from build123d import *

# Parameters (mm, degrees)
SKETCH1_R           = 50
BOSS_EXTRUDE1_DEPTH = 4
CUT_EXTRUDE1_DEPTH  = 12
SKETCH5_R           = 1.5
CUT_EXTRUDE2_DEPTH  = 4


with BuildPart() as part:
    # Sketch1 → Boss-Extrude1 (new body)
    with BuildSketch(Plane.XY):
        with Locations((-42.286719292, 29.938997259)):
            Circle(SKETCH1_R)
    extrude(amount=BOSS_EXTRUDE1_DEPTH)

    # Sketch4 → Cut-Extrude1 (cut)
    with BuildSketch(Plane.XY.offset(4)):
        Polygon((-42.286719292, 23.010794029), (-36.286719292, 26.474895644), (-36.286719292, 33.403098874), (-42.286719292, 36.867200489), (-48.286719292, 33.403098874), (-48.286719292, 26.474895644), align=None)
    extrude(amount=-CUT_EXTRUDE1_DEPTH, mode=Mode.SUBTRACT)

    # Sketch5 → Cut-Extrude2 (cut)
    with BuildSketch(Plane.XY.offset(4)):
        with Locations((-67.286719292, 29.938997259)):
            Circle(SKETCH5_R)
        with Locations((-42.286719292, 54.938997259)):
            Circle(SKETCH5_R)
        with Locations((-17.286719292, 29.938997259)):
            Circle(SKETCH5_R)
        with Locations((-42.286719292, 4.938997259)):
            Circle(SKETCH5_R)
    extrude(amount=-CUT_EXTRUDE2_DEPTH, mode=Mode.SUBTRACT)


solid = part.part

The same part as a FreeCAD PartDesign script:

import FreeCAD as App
import Part
import Sketcher

V = App.Vector
Q = App.Units.Quantity

doc = App.newDocument("Part")
body = doc.addObject("PartDesign::Body", "Body")

sketch1 = body.newObject("Sketcher::SketchObject", "Sketch")
sketch1.AttachmentSupport = (doc.getObject("XY_Plane"), [""])
sketch1.MapMode = "FlatFace"
sketch1.addGeometry(Part.Circle(V(-42.286719, 29.938997, 0), V(0, 0, 1), 50), False)
sketch1.addConstraint([
    Sketcher.Constraint("Diameter", 0, Q("100 mm")),
    Sketcher.Constraint("DistanceX", 0, 3, -1, 1, Q("42.286719 mm")),
    Sketcher.Constraint("DistanceY", -1, 1, 0, 3, Q("29.938997 mm")),
])
pad1 = body.newObject("PartDesign::Pad", "Pad")
pad1.Profile = sketch1
pad1.Length = 4

sketch2 = body.newObject("Sketcher::SketchObject", "Sketch001")
sketch2.AttachmentSupport = (doc.getObject("XY_Plane"), [""])
sketch2.MapMode = "FlatFace"
sketch2.AttachmentOffset = App.Placement(V(0, 0, 4), App.Rotation())
sketch2.addGeometry([
    Part.LineSegment(V(-42.286719, 23.010794, 0), V(-36.286719, 26.474896, 0)),
    Part.LineSegment(V(-36.286719, 26.474896, 0), V(-36.286719, 33.403099, 0)),
    Part.LineSegment(V(-36.286719, 33.403099, 0), V(-42.286719, 36.8672, 0)),
    Part.LineSegment(V(-42.286719, 36.8672, 0), V(-48.286719, 33.403099, 0)),
    Part.LineSegment(V(-48.286719, 33.403099, 0), V(-48.286719, 26.474896, 0)),
    Part.LineSegment(V(-48.286719, 26.474896, 0), V(-42.286719, 23.010794, 0)),
], False)
sketch2.addConstraint([
    Sketcher.Constraint("Coincident", 0, 2, 1, 1),
    Sketcher.Constraint("Coincident", 1, 2, 2, 1),
    Sketcher.Constraint("Coincident", 2, 2, 3, 1),
    Sketcher.Constraint("Coincident", 3, 2, 4, 1),
    Sketcher.Constraint("Coincident", 4, 2, 5, 1),
    Sketcher.Constraint("Coincident", 5, 2, 0, 1),
    Sketcher.Constraint("Vertical", 1),
    Sketcher.Constraint("Vertical", 4),
    Sketcher.Constraint("Parallel", 0, 3),
    Sketcher.Constraint("Parallel", 2, 5),
    Sketcher.Constraint("Horizontal", 1, 2, 3, 2),
    Sketcher.Constraint("Horizontal", 0, 2, 4, 2),
    Sketcher.Constraint("Vertical", 2, 2, 5, 2),
    Sketcher.Constraint("Angle", 0, Q("30 deg")),
    Sketcher.Constraint("DistanceX", 2, 2, 1, 2, Q("6 mm")),
    Sketcher.Constraint("DistanceY", -1, 1, 1, 2, Q("33.403099 mm")),
    Sketcher.Constraint("DistanceY", 1, 1, 1, 2, Q("6.928203 mm")),
    Sketcher.Constraint("DistanceX", 0, 2, -1, 1, Q("36.286719 mm")),
])
pocket1 = body.newObject("PartDesign::Pocket", "Pocket")
pocket1.Profile = sketch2
pocket1.Length = 12

sketch3 = body.newObject("Sketcher::SketchObject", "Sketch002")
sketch3.AttachmentSupport = (doc.getObject("XY_Plane"), [""])
sketch3.MapMode = "FlatFace"
sketch3.AttachmentOffset = App.Placement(V(0, 0, 4), App.Rotation())
sketch3.addGeometry([
    Part.Circle(V(-67.286719, 29.938997, 0), V(0, 0, 1), 1.5),
    Part.Circle(V(-42.286719, 54.938997, 0), V(0, 0, 1), 1.5),
    Part.Circle(V(-17.286719, 29.938997, 0), V(0, 0, 1), 1.5),
    Part.Circle(V(-42.286719, 4.938997, 0), V(0, 0, 1), 1.5),
], False)
sketch3.addConstraint([
    Sketcher.Constraint("Equal", 0, 1),
    Sketcher.Constraint("Equal", 1, 2),
    Sketcher.Constraint("Equal", 2, 3),
    Sketcher.Constraint("Horizontal", 0, 3, 2, 3),
    Sketcher.Constraint("Vertical", 1, 3, 3, 3),
    Sketcher.Constraint("Diameter", 0, Q("3 mm")),
    Sketcher.Constraint("DistanceX", 0, 3, 1, 3, Q("25 mm")),
    Sketcher.Constraint("DistanceY", 0, 3, 1, 3, Q("25 mm")),
    Sketcher.Constraint("DistanceX", 1, 3, 2, 3, Q("25 mm")),
    Sketcher.Constraint("DistanceY", 3, 3, 0, 3, Q("25 mm")),
    Sketcher.Constraint("DistanceX", 0, 3, -1, 1, Q("67.286719 mm")),
    Sketcher.Constraint("DistanceY", -1, 1, 0, 3, Q("29.938997 mm")),
])
pocket2 = body.newObject("PartDesign::Pocket", "Pocket001")
pocket2.Profile = sketch3
pocket2.Length = 4

doc.recompute()
